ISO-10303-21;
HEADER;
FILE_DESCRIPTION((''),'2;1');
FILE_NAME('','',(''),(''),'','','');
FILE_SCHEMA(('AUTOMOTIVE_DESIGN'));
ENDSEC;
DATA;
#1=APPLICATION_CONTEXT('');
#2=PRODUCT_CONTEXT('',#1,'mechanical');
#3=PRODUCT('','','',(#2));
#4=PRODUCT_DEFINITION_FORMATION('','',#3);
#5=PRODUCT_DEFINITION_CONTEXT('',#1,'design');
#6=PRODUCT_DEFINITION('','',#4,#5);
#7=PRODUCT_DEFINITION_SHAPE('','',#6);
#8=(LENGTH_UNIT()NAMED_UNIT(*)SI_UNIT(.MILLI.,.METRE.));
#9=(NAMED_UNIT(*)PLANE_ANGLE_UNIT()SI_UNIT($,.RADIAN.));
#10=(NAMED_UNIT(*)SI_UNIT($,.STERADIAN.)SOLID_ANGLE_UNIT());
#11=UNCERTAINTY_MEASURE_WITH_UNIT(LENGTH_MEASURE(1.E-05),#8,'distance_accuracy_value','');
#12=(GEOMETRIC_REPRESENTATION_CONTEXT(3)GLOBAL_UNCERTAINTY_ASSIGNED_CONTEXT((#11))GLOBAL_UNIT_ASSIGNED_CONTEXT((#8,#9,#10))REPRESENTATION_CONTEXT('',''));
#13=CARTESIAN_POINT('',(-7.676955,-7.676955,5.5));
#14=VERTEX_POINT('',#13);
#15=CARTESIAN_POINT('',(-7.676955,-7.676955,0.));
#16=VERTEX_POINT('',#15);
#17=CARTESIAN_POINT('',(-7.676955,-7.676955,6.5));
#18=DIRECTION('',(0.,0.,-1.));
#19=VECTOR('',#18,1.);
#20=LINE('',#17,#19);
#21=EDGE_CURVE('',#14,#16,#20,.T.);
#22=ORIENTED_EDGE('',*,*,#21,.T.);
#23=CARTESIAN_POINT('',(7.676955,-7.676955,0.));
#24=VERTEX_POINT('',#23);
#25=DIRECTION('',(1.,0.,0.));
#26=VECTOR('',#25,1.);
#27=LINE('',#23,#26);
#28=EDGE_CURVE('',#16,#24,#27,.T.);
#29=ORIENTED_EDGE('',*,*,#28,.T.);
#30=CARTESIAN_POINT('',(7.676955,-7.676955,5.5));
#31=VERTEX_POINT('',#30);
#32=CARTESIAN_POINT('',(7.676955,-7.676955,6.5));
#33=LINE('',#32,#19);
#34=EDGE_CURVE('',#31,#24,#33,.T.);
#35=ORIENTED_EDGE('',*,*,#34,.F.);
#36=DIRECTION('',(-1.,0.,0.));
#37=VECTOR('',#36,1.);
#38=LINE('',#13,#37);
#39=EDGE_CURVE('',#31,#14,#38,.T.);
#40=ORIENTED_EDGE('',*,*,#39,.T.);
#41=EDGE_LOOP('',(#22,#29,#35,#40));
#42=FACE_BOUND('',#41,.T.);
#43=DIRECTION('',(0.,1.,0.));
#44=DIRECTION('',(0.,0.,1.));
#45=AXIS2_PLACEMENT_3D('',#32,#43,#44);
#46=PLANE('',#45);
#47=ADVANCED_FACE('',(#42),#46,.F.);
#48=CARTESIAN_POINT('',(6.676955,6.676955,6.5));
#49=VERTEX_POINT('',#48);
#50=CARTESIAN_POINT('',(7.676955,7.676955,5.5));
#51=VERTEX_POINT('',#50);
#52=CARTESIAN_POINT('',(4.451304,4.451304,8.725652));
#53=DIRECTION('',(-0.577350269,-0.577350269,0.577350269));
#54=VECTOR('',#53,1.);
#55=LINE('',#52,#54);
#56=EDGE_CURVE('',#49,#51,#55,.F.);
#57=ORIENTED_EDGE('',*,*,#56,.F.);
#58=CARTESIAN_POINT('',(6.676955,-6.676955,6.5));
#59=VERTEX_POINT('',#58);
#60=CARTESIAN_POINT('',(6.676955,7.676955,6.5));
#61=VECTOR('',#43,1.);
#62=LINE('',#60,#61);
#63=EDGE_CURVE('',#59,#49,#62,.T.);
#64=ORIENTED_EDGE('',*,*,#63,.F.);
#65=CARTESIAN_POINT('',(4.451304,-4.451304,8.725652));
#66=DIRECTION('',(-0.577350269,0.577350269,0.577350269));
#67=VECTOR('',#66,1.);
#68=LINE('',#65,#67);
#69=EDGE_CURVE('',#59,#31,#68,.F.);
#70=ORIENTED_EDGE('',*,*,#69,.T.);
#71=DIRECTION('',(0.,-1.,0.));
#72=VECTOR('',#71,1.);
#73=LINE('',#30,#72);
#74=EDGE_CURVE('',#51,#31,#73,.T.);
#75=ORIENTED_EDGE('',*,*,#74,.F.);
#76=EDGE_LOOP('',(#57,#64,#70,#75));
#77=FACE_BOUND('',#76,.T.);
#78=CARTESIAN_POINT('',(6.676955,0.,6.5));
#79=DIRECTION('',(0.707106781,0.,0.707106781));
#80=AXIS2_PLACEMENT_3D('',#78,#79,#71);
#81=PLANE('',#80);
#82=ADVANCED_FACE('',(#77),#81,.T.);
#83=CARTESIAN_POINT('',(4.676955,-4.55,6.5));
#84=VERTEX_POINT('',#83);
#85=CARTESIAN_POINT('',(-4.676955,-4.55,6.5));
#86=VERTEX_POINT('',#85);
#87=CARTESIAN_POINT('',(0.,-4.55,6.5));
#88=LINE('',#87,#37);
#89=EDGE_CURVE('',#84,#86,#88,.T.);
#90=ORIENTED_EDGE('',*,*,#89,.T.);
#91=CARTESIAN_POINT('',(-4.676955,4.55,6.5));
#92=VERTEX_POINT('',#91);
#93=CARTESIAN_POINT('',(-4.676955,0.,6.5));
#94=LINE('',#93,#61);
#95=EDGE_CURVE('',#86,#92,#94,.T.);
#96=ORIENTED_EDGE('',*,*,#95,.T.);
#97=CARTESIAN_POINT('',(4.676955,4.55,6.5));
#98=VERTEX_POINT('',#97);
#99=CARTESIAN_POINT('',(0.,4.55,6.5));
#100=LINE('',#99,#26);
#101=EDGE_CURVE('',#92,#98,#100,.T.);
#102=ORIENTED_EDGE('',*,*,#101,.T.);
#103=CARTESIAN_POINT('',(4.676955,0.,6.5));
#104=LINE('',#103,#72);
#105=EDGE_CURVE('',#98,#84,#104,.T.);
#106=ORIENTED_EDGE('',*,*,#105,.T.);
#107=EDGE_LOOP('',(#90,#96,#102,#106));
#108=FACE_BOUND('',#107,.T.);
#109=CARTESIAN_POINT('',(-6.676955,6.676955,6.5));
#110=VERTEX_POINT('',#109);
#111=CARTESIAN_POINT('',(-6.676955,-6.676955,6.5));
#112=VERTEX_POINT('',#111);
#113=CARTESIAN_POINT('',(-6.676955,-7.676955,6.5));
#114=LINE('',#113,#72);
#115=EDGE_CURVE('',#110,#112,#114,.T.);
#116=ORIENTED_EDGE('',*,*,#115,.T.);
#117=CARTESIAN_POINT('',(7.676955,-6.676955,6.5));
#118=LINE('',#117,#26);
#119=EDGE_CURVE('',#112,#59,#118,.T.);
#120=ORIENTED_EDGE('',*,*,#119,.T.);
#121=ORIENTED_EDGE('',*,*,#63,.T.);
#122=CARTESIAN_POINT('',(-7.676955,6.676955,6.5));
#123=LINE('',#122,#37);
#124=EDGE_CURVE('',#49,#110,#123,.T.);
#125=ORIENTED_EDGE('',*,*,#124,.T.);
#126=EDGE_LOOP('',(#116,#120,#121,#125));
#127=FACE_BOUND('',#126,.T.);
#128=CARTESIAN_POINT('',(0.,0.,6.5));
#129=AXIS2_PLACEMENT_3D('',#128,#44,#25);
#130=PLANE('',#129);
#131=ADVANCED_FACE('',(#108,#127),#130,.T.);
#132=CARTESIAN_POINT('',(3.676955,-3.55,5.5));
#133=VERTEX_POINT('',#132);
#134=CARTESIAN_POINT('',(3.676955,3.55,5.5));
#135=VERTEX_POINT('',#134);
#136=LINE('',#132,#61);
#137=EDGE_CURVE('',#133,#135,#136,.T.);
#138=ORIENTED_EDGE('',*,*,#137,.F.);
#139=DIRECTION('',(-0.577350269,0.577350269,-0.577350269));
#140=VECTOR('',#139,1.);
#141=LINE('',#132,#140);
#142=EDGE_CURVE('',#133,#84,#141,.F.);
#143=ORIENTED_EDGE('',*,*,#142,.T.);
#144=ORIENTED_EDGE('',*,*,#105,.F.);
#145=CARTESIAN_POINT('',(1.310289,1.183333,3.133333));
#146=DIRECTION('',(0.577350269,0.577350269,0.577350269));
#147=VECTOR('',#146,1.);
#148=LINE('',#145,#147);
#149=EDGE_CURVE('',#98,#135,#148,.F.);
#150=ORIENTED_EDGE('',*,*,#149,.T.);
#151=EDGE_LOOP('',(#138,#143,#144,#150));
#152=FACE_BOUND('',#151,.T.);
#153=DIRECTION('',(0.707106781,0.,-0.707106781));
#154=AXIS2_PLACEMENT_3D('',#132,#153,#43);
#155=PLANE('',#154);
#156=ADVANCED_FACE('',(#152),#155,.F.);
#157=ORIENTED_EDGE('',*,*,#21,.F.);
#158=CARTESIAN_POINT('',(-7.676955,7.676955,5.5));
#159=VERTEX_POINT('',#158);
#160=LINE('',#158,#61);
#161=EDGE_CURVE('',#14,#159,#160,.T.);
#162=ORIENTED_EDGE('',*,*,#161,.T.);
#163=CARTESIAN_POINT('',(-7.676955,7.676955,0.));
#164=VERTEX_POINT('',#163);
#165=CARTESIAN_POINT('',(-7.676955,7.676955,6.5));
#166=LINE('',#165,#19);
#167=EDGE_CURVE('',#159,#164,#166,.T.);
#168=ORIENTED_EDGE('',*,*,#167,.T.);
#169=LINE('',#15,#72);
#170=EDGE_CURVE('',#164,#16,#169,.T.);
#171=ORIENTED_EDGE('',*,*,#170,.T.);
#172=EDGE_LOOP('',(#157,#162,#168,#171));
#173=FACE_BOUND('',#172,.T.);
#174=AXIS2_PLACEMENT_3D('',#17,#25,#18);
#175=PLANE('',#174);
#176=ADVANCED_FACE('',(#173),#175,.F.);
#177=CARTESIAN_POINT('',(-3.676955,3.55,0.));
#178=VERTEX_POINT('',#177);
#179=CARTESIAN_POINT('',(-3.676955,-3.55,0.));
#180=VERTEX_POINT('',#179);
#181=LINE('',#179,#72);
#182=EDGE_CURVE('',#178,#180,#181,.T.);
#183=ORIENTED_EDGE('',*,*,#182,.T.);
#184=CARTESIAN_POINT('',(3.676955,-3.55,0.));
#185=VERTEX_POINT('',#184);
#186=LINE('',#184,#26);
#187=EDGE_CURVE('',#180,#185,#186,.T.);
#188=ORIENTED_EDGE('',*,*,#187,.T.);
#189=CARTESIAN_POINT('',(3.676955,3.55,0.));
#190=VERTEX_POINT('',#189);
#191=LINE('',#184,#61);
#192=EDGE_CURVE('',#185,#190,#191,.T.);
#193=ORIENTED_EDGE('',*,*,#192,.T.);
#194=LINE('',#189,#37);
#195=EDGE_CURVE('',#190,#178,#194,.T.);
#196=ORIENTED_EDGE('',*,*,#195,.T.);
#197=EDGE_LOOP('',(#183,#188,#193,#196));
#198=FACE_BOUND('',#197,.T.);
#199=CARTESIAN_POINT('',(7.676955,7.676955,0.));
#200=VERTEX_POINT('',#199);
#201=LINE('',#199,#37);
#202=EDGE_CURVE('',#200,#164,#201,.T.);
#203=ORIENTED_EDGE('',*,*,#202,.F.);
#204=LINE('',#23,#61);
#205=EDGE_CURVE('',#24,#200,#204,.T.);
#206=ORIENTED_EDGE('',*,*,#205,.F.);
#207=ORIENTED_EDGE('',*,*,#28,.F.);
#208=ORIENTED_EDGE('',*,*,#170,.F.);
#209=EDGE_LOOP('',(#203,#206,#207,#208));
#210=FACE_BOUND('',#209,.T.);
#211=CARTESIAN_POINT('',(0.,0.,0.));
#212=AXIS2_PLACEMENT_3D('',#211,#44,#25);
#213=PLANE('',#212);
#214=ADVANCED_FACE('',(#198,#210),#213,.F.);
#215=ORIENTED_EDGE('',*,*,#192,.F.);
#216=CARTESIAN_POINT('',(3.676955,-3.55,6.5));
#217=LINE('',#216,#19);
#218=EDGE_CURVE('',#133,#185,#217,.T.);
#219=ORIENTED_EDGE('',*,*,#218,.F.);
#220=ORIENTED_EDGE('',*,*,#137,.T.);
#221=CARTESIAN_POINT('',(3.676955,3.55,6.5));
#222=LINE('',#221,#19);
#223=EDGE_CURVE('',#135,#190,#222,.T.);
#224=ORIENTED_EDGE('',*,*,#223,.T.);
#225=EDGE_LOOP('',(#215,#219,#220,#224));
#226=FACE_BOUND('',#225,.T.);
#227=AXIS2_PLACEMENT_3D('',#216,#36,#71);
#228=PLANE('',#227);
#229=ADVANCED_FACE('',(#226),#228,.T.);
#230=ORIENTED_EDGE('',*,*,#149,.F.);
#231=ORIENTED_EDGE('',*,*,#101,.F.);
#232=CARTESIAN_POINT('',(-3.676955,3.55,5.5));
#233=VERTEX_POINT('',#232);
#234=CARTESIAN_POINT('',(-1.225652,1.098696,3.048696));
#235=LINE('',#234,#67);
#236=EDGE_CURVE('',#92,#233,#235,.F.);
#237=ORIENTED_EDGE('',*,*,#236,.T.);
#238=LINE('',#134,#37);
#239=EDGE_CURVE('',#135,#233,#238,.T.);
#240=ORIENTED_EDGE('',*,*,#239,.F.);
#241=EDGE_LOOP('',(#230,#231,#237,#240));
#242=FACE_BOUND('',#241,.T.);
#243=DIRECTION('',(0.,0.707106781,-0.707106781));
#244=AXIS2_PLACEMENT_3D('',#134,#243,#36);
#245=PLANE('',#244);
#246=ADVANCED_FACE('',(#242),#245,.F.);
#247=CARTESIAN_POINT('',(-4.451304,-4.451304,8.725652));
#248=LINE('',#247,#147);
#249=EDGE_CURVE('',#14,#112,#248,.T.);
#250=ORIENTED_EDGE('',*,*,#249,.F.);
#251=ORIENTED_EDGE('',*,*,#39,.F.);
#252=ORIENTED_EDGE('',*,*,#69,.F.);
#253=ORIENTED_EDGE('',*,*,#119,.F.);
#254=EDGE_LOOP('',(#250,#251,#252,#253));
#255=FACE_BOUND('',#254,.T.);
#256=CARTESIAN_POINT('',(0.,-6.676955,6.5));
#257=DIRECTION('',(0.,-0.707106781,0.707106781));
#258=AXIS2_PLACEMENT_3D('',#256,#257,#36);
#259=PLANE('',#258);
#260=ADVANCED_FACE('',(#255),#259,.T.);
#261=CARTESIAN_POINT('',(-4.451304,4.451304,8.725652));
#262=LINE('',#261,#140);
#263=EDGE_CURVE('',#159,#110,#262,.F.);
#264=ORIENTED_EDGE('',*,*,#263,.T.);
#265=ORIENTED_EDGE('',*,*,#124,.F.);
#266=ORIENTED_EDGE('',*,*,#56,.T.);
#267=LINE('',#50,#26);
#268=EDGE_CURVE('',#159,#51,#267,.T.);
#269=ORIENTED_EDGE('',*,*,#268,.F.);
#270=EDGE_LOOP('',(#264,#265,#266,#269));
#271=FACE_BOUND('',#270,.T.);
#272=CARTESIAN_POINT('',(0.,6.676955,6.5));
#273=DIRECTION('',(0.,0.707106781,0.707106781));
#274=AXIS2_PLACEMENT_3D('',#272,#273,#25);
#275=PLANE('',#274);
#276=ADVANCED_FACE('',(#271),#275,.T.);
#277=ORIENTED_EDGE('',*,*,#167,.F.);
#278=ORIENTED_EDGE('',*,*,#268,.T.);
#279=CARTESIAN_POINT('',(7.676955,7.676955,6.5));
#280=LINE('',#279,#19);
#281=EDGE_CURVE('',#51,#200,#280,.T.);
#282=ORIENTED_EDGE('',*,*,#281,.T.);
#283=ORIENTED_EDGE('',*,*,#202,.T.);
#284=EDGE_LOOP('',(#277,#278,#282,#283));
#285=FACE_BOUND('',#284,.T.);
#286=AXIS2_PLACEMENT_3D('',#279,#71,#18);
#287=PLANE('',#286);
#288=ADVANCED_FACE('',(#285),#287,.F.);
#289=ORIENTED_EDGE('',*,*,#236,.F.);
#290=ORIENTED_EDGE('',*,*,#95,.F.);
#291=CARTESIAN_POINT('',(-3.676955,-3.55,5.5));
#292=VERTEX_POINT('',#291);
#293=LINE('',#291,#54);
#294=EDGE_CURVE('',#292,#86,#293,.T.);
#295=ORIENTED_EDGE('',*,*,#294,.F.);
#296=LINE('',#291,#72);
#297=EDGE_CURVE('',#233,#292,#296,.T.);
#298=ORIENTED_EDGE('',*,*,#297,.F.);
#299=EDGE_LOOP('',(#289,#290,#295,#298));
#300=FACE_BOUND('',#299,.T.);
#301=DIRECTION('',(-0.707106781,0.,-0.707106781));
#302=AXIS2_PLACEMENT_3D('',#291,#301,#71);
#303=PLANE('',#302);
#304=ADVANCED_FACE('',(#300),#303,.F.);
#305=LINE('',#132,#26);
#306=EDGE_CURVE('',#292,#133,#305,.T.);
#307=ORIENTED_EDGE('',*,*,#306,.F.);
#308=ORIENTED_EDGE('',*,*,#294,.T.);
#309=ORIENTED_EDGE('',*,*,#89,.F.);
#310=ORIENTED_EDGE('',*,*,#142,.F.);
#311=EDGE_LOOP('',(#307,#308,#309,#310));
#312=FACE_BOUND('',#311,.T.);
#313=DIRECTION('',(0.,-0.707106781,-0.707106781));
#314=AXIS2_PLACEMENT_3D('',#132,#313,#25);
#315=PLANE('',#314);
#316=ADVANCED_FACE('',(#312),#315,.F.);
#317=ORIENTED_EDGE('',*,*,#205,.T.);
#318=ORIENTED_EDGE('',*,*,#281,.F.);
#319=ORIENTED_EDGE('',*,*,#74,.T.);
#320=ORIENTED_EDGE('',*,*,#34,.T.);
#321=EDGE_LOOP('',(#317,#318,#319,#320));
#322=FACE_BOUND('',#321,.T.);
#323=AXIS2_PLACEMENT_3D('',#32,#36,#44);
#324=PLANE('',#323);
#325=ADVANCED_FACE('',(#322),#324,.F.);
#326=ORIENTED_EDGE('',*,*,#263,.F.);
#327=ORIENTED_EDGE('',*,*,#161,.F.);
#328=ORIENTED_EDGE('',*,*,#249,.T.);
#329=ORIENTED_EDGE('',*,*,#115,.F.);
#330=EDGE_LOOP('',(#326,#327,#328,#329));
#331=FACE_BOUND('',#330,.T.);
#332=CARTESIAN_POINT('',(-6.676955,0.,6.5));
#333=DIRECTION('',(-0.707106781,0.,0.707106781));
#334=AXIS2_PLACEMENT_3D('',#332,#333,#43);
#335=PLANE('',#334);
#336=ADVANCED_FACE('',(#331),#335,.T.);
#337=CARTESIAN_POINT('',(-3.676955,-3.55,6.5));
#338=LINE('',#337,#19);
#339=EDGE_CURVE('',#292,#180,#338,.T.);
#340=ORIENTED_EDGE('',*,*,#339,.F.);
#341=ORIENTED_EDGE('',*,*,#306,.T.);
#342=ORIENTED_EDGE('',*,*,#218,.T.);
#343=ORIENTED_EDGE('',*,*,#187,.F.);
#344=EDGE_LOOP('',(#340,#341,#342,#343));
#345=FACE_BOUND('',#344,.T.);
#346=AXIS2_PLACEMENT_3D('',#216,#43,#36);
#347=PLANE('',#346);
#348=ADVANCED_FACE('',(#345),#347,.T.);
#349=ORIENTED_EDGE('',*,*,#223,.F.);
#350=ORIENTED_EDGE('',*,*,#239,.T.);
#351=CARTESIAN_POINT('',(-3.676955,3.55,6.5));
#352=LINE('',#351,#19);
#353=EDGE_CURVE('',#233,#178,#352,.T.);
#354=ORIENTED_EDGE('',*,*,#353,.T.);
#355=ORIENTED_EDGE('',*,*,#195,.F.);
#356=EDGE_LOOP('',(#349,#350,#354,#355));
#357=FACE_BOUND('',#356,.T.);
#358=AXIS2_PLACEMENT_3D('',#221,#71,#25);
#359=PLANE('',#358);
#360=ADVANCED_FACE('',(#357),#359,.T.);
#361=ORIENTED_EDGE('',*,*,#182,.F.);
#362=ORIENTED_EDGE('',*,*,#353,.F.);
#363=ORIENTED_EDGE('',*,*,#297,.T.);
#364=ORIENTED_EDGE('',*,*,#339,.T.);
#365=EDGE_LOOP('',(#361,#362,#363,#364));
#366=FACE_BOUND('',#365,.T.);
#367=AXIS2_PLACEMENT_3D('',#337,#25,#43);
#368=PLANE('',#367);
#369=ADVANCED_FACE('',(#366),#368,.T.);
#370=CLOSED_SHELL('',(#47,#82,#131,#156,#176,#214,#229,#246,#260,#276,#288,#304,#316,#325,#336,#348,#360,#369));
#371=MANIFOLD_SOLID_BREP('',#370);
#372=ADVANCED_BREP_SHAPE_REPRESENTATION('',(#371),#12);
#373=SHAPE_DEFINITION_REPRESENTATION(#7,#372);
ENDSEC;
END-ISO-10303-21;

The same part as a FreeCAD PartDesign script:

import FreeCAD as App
import Part
import Sketcher


def edges_at(feature, points):
    """Names of the edges that pass closest to the given points."""
    edges = feature.Shape.Edges
    near = lambda p: min(range(len(edges)), key=lambda i: edges[i].distToShape(Part.Vertex(*p))[0])
    return sorted({f"Edge{near(p) + 1}" for p in points})


def add_polygon(sketch, points):
    """Adds a closed chain of lines whose ends are joined by coincident constraints."""
    first, n = sketch.GeometryCount, len(points)
    for a, b in zip(points, points[1:] + points[:1]):
        sketch.addGeometry(Part.LineSegment(App.Vector(*a, 0), App.Vector(*b, 0)), False)
    for i in range(n):
        sketch.addConstraint(Sketcher.Constraint("Coincident", first + i, 2, first + (i + 1) % n, 1))

doc = App.newDocument("Part")
body = doc.addObject("PartDesign::Body", "Body")

# Sketch on XY plane
sketch1 = body.newObject("Sketcher::SketchObject", "Sketch")
sketch1.AttachmentSupport = (doc.getObject("XY_Plane"), [""])
sketch1.MapMode = "FlatFace"
add_polygon(sketch1, [(-8, 8), (-8, -8), (8, -8), (8, 8)])  # lines 0-3
add_polygon(sketch1, [(4, -4), (-4, -4), (-4, 4), (4, 4)])  # lines 4-7
sketch1.addConstraint(Sketcher.Constraint("Vertical", 0))
sketch1.addConstraint(Sketcher.Constraint("Horizontal", 1))
sketch1.addConstraint(Sketcher.Constraint("Vertical", 2))
sketch1.addConstraint(Sketcher.Constraint("Horizontal", 3))
sketch1.addConstraint(Sketcher.Constraint("Horizontal", 4))
sketch1.addConstraint(Sketcher.Constraint("Vertical", 5))
sketch1.addConstraint(Sketcher.Constraint("Horizontal", 6))
sketch1.addConstraint(Sketcher.Constraint("Vertical", 7))
sketch1.addConstraint(Sketcher.Constraint("Symmetric", 0, 2, 2, 2, -1, 1))
sketch1.addConstraint(Sketcher.Constraint("Symmetric", 4, 2, 6, 2, -1, 1))
sketch1.addConstraint(Sketcher.Constraint("Equal", 3, 0))
sketch1.addConstraint(Sketcher.Constraint("DistanceY", 5, 1, 5, 2, 7.1))
sketch1.addConstraint(Sketcher.Constraint("DistanceX", 0, 2, 4, 2, 4.0))
sketch1.addConstraint(Sketcher.Constraint("DistanceX", 1, 1, 1, 2, 15.353911))
pad1 = body.newObject("PartDesign::Pad", "Pad")
pad1.Profile = sketch1
pad1.Length = 6.5
doc.recompute()

chamfer = body.newObject("PartDesign::Chamfer", "Chamfer")
chamfer.Base = (pad1, edges_at(pad1, [
    (7.677, 0, 6.5),
    (-3.677, 0, 6.5),
    (0, 7.677, 6.5),
    (0, -3.55, 6.5),
    (3.677, 0, 6.5),
    (0, 3.55, 6.5),
    (-7.677, 0, 6.5),
    (0, -7.677, 6.5),
]))
chamfer.Size = 1

doc.recompute()
